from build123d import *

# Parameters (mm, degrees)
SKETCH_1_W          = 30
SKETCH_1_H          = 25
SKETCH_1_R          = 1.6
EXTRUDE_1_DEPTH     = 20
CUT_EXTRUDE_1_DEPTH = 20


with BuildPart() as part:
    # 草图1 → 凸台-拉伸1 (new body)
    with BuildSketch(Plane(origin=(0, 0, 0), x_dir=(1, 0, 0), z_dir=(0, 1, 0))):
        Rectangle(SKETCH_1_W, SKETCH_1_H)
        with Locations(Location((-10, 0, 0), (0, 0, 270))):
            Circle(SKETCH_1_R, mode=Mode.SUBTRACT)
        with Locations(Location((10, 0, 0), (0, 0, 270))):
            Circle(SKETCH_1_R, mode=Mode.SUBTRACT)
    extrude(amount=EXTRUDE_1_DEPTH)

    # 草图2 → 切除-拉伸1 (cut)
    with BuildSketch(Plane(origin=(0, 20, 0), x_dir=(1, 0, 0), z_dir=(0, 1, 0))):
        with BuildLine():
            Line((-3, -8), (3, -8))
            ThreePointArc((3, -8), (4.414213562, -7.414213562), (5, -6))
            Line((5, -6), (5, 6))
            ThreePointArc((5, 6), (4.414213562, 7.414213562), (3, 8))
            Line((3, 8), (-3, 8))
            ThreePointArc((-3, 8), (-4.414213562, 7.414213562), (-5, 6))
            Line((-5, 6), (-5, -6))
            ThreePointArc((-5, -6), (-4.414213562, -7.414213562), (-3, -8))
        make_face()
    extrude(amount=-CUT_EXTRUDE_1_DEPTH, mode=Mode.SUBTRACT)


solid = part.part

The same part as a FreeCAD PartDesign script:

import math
import FreeCAD as App
import Part
import Sketcher

V = App.Vector
Q = App.Units.Quantity

doc = App.newDocument("Part")
body = doc.addObject("PartDesign::Body", "Body")

sketch1 = body.newObject("Sketcher::SketchObject", "Sketch")
sketch1.AttachmentSupport = (doc.getObject("XZ_Plane"), [""])
sketch1.MapMode = "FlatFace"
sketch1.addGeometry([
    Part.LineSegment(V(-15, -12.5, 0), V(-15, 12.5, 0)),
    Part.LineSegment(V(-15, 12.5, 0), V(15, 12.5, 0)),
    Part.LineSegment(V(15, 12.5, 0), V(15, -12.5, 0)),
    Part.LineSegment(V(15, -12.5, 0), V(-15, -12.5, 0)),
    Part.Circle(V(-10, 0, 0), V(0, 0, 1), 1.6),
    Part.Circle(V(10, 0, 0), V(0, 0, 1), 1.6),
], False)
sketch1.addConstraint([
    Sketcher.Constraint("Coincident", 0, 2, 1, 1),
    Sketcher.Constraint("Coincident", 1, 2, 2, 1),
    Sketcher.Constraint("Coincident", 2, 2, 3, 1),
    Sketcher.Constraint("Coincident", 3, 2, 0, 1),
    Sketcher.Constraint("Vertical", 0),
    Sketcher.Constraint("Horizontal", 1),
    Sketcher.Constraint("Vertical", 2),
    Sketcher.Constraint("Horizontal", 3),
    Sketcher.Constraint("Equal", 4, 5),
    Sketcher.Constraint("Symmetric", 4, 3, 5, 3, -1, 1),
    Sketcher.Constraint("Symmetric", 0, 2, 2, 2, -1, 1),
    Sketcher.Constraint("PointOnObject", 4, 3, -1),
    Sketcher.Constraint("Diameter", 4, Q("3.2 mm")),
    Sketcher.Constraint("DistanceX", 1, 1, 1, 2, Q("30 mm")),
    Sketcher.Constraint("DistanceY", 0, 1, 0, 2, Q("25 mm")),
    Sketcher.Constraint("DistanceX", 4, 3, -1, 1, Q("10 mm")),
])
pad1 = body.newObject("PartDesign::Pad", "Pad")
pad1.Profile = sketch1
pad1.Length = 20
pad1.Reversed = True

sketch2 = body.newObject("Sketcher::SketchObject", "Sketch001")
sketch2.AttachmentSupport = (doc.getObject("XZ_Plane"), [""])
sketch2.MapMode = "FlatFace"
sketch2.AttachmentOffset = App.Placement(V(0, 0, -20), App.Rotation())
sketch2.addGeometry([
    Part.LineSegment(V(-3, 8, 0), V(3, 8, 0)),
    Part.ArcOfCircle(Part.Circle(V(3, 6, 0), V(0, 0, 1), 2), math.radians(0), math.radians(90)),
    Part.LineSegment(V(5, 6, 0), V(5, -6, 0)),
    Part.ArcOfCircle(Part.Circle(V(3, -6, 0), V(0, 0, 1), 2), math.radians(-90), math.radians(0)),
    Part.LineSegment(V(3, -8, 0), V(-3, -8, 0)),
    Part.ArcOfCircle(Part.Circle(V(-3, -6, 0), V(0, 0, 1), 2), math.radians(-180), math.radians(-90)),
    Part.LineSegment(V(-5, -6, 0), V(-5, 6, 0)),
    Part.ArcOfCircle(Part.Circle(V(-3, 6, 0), V(0, 0, 1), 2), math.radians(90), math.radians(180)),
], False)
sketch2.addConstraint([
    Sketcher.Constraint("Tangent", 0, 2, 1, 2),
    Sketcher.Constraint("Tangent", 1, 1, 2, 1),
    Sketcher.Constraint("Tangent", 2, 2, 3, 2),
    Sketcher.Constraint("Tangent", 3, 1, 4, 1),
    Sketcher.Constraint("Tangent", 4, 2, 5, 2),
    Sketcher.Constraint("Tangent", 5, 1, 6, 1),
    Sketcher.Constraint("Tangent", 6, 2, 7, 2),
    Sketcher.Constraint("Tangent", 7, 1, 0, 1),
    Sketcher.Constraint("Horizontal", 0),
    Sketcher.Constraint("Vertical", 2),
    Sketcher.Constraint("Horizontal", 4),
    Sketcher.Constraint("Vertical", 6),
    Sketcher.Constraint("Equal", 1, 3),
    Sketcher.Constraint("Equal", 3, 5),
    Sketcher.Constraint("Equal", 5, 7),
    Sketcher.Constraint("Symmetric", 1, 3, 5, 3, -1, 1),
    Sketcher.Constraint("Radius", 1, Q("2 mm")),
    Sketcher.Constraint("DistanceX", 0, 1, 0, 2, Q("6 mm")),
    Sketcher.Constraint("DistanceY", 2, 2, 2, 1, Q("12 mm")),
])
pocket1 = body.newObject("PartDesign::Pocket", "Pocket")
pocket1.Profile = sketch2
pocket1.Length = 20
pocket1.Reversed = True

doc.recompute()
